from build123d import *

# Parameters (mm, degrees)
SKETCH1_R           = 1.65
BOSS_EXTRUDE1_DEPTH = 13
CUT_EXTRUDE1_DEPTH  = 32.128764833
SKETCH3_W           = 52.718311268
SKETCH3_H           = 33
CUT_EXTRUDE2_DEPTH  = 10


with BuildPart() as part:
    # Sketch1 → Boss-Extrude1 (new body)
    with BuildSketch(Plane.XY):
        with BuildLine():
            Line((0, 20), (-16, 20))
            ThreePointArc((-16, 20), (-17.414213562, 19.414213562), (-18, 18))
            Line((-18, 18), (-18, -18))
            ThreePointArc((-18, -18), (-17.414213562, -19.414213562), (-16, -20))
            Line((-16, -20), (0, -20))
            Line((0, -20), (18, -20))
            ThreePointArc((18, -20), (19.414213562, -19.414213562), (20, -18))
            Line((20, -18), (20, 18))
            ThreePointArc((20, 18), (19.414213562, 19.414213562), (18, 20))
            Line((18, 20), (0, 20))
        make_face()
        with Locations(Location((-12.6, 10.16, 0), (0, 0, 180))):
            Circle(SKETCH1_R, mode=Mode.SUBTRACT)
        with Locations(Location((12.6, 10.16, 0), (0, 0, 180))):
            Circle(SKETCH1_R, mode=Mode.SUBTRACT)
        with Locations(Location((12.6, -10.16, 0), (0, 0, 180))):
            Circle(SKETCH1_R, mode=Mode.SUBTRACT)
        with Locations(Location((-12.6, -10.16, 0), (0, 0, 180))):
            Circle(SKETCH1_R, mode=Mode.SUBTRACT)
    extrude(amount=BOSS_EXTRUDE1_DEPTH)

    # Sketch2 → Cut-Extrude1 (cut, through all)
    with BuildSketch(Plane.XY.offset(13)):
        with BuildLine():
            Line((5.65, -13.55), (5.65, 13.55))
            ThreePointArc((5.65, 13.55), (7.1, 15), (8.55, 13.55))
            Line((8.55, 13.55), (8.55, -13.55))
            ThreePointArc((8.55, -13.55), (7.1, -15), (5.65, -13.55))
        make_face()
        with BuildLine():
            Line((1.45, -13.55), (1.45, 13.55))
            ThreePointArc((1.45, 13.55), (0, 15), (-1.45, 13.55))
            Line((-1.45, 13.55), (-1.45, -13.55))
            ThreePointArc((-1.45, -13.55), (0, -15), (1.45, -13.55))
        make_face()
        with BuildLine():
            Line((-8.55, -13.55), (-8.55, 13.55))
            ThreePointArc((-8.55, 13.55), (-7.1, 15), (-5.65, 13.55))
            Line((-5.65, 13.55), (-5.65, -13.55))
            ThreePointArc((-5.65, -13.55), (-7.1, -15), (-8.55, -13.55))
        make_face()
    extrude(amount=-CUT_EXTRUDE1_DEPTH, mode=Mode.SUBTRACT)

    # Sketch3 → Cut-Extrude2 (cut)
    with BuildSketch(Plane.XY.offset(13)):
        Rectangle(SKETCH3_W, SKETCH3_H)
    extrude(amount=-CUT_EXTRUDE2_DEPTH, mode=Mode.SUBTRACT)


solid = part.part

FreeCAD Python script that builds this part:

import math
import FreeCAD as App
import Part
import Sketcher
Q = App.Units.Quantity


def add_polygon(sketch, points):
    """Adds a closed chain of lines whose ends are joined by coincident constraints."""
    first, n = sketch.GeometryCount, len(points)
    for a, b in zip(points, points[1:] + points[:1]):
        sketch.addGeometry(Part.LineSegment(App.Vector(*a, 0), App.Vector(*b, 0)), False)
    for i in range(n):
        sketch.addConstraint(Sketcher.Constraint("Coincident", first + i, 2, first + (i + 1) % n, 1))

doc = App.newDocument("Part")
body = doc.addObject("PartDesign::Body", "Body")

sketch1 = doc.addObject("Sketcher::SketchObject", "Sketch")
body.addObject(sketch1)
sketch1.AttachmentSupport = (doc.XY_Plane, [""])
sketch1.MapMode = "FlatFace"
sketch1.addGeometry([
    Part.ArcOfCircle(Part.Circle(App.Vector(-16, 18, 0), App.Vector(0, 0, 1), 2), math.radians(90), math.radians(180)),
    Part.LineSegment(App.Vector(-18, 18, 0), App.Vector(-18, -18, 0)),
    Part.ArcOfCircle(Part.Circle(App.Vector(-16, -18, 0), App.Vector(0, 0, 1), 2), math.radians(-180), math.radians(-90)),
    Part.LineSegment(App.Vector(-16, -20, 0), App.Vector(18, -20, 0)),
    Part.ArcOfCircle(Part.Circle(App.Vector(18, -18, 0), App.Vector(0, 0, 1), 2), math.radians(-90), math.radians(0)),
    Part.LineSegment(App.Vector(20, -18, 0), App.Vector(20, 18, 0)),
    Part.ArcOfCircle(Part.Circle(App.Vector(18, 18, 0), App.Vector(0, 0, 1), 2), math.radians(0), math.radians(90)),
    Part.LineSegment(App.Vector(18, 20, 0), App.Vector(-16, 20, 0)),
    Part.Circle(App.Vector(-12.6, -10.2, 0), App.Vector(0, 0, 1), 1.6),
    Part.Circle(App.Vector(12.6, -10.2, 0), App.Vector(0, 0, 1), 1.6),
    Part.Circle(App.Vector(-12.6, 10.2, 0), App.Vector(0, 0, 1), 1.6),
    Part.Circle(App.Vector(12.6, 10.2, 0), App.Vector(0, 0, 1), 1.6),
], False)
sketch1.addConstraint([
    Sketcher.Constraint("Tangent", 0, 2, 1, 1),
    Sketcher.Constraint("Tangent", 1, 2, 2, 1),
    Sketcher.Constraint("Tangent", 2, 2, 3, 1),
    Sketcher.Constraint("Tangent", 3, 2, 4, 1),
    Sketcher.Constraint("Tangent", 4, 2, 5, 1),
    Sketcher.Constraint("Tangent", 5, 2, 6, 1),
    Sketcher.Constraint("Tangent", 6, 2, 7, 1),
    Sketcher.Constraint("Tangent", 7, 2, 0, 1),
    Sketcher.Constraint("Vertical", 1),
    Sketcher.Constraint("Horizontal", 3),
    Sketcher.Constraint("Vertical", 5),
    Sketcher.Constraint("Horizontal", 7),
    Sketcher.Constraint("Equal", 0, 2),
    Sketcher.Constraint("Equal", 2, 4),
    Sketcher.Constraint("Equal", 4, 6),
    Sketcher.Constraint("Equal", 8, 9),
    Sketcher.Constraint("Equal", 9, 10),
    Sketcher.Constraint("Equal", 10, 11),
    Sketcher.Constraint("Symmetric", 9, 3, 10, 3, -1, 1),
    Sketcher.Constraint("Symmetric", 8, 3, 11, 3, -1, 1),
    Sketcher.Constraint("Symmetric", 8, 3, 9, 3, -2),
    Sketcher.Constraint("Radius", 0, Q("2 mm")),
    Sketcher.Constraint("Diameter", 8, Q("3.3 mm")),
    Sketcher.Constraint("DistanceX", 3, 1, 3, 2, Q("34 mm")),
    Sketcher.Constraint("DistanceY", 1, 2, 1, 1, Q("36 mm")),
    Sketcher.Constraint("DistanceX", 0, 3, -1, 1, Q("16 mm")),
    Sketcher.Constraint("DistanceY", -1, 1, 0, 3, Q("18 mm")),
    Sketcher.Constraint("DistanceX", 8, 3, -1, 1, Q("12.6 mm")),
    Sketcher.Constraint("DistanceY", 8, 3, -1, 1, Q("10.16 mm")),
])
pad1 = doc.addObject("PartDesign::Pad", "Pad")
body.addObject(pad1)
pad1.Profile = sketch1
pad1.Length = 13

sketch2 = doc.addObject("Sketcher::SketchObject", "Sketch001")
body.addObject(sketch2)
sketch2.AttachmentSupport = (doc.XY_Plane, [""])
sketch2.MapMode = "FlatFace"
sketch2.AttachmentOffset = App.Placement(App.Vector(0, 0, 13), App.Rotation())
sketch2.addGeometry([
    Part.LineSegment(App.Vector(5.7, 13.6, 0), App.Vector(5.7, -13.6, 0)),
    Part.ArcOfCircle(Part.Circle(App.Vector(7.1, -13.6, 0), App.Vector(0, 0, 1), 1.4), math.radians(180), math.radians(360)),
    Part.LineSegment(App.Vector(8.6, -13.6, 0), App.Vector(8.6, 13.6, 0)),
    Part.ArcOfCircle(Part.Circle(App.Vector(7.1, 13.6, 0), App.Vector(0, 0, 1), 1.4), math.radians(0), math.radians(180)),
    Part.LineSegment(App.Vector(1.4, -13.6, 0), App.Vector(1.4, 13.6, 0)),
    Part.ArcOfCircle(Part.Circle(App.Vector(0, 13.6, 0), App.Vector(0, 0, 1), 1.4), math.radians(0), math.radians(180)),
    Part.LineSegment(App.Vector(-1.4, 13.6, 0), App.Vector(-1.4, -13.6, 0)),
    Part.ArcOfCircle(Part.Circle(App.Vector(0, -13.6, 0), App.Vector(0, 0, 1), 1.4), math.radians(180), math.radians(360)),
    Part.LineSegment(App.Vector(-8.6, 13.6, 0), App.Vector(-8.6, -13.6, 0)),
    Part.ArcOfCircle(Part.Circle(App.Vector(-7.1, -13.6, 0), App.Vector(0, 0, 1), 1.4), math.radians(180), math.radians(360)),
    Part.LineSegment(App.Vector(-5.7, -13.6, 0), App.Vector(-5.7, 13.6, 0)),
    Part.ArcOfCircle(Part.Circle(App.Vector(-7.1, 13.6, 0), App.Vector(0, 0, 1), 1.4), math.radians(0), math.radians(180)),
], False)
sketch2.addConstraint([
    Sketcher.Constraint("Tangent", 0, 2, 1, 1),
    Sketcher.Constraint("Tangent", 1, 2, 2, 1),
    Sketcher.Constraint("Tangent", 2, 2, 3, 1),
    Sketcher.Constraint("Tangent", 3, 2, 0, 1),
    Sketcher.Constraint("Tangent", 4, 2, 5, 1),
    Sketcher.Constraint("Tangent", 5, 2, 6, 1),
    Sketcher.Constraint("Tangent", 6, 2, 7, 1),
    Sketcher.Constraint("Tangent", 7, 2, 4, 1),
    Sketcher.Constraint("Tangent", 8, 2, 9, 1),
    Sketcher.Constraint("Tangent", 9, 2, 10, 1),
    Sketcher.Constraint("Tangent", 10, 2, 11, 1),
    Sketcher.Constraint("Tangent", 11, 2, 8, 1),
    Sketcher.Constraint("Vertical", 0),
    Sketcher.Constraint("Vertical", 2),
    Sketcher.Constraint("Vertical", 4),
    Sketcher.Constraint("Vertical", 6),
    Sketcher.Constraint("Vertical", 8),
    Sketcher.Constraint("Vertical", 10),
    Sketcher.Constraint("Equal", 3, 5),
    Sketcher.Constraint("Equal", 7, 9),
    Sketcher.Constraint("Symmetric", 5, 3, 7, 3, -1, 1),
    Sketcher.Constraint("Symmetric", 3, 3, 9, 3, -1, 1),
    Sketcher.Constraint("Horizontal", 3, 3, 5, 3),
    Sketcher.Constraint("Horizontal", 1, 3, 7, 3),
    Sketcher.Constraint("Horizontal", 5, 3, 11, 3),
    Sketcher.Constraint("Radius", 1, Q("1.45 mm")),
    Sketcher.Constraint("DistanceY", 0, 2, 0, 1, Q("27.1 mm")),
    Sketcher.Constraint("DistanceX", 6, 2, 1, 2, Q("10 mm")),
])
pocket1 = doc.addObject("PartDesign::Pocket", "Pocket")
body.addObject(pocket1)
pocket1.Profile = sketch2
pocket1.Type = "ThroughAll"

sketch3 = doc.addObject("Sketcher::SketchObject", "Sketch002")
body.addObject(sketch3)
sketch3.AttachmentSupport = (doc.XY_Plane, [""])
sketch3.MapMode = "FlatFace"
sketch3.AttachmentOffset = App.Placement(App.Vector(0, 0, 13), App.Rotation())
add_polygon(sketch3, [(-26, 16), (-26, -16), (26, -16), (26, 16)])
sketch3.addConstraint([
    Sketcher.Constraint("Vertical", 0),
    Sketcher.Constraint("Horizontal", 1),
    Sketcher.Constraint("Vertical", 2),
    Sketcher.Constraint("Horizontal", 3),
    Sketcher.Constraint("Symmetric", 0, 2, 2, 2, -1, 1),
    Sketcher.Constraint("DistanceY", 0, 2, 0, 1, Q("33 mm")),
    Sketcher.Constraint("DistanceX", 1, 1, 1, 2, Q("52.718311 mm")),
])
pocket2 = doc.addObject("PartDesign::Pocket", "Pocket001")
body.addObject(pocket2)
pocket2.Profile = sketch3
pocket2.Length = 10

doc.recompute()
